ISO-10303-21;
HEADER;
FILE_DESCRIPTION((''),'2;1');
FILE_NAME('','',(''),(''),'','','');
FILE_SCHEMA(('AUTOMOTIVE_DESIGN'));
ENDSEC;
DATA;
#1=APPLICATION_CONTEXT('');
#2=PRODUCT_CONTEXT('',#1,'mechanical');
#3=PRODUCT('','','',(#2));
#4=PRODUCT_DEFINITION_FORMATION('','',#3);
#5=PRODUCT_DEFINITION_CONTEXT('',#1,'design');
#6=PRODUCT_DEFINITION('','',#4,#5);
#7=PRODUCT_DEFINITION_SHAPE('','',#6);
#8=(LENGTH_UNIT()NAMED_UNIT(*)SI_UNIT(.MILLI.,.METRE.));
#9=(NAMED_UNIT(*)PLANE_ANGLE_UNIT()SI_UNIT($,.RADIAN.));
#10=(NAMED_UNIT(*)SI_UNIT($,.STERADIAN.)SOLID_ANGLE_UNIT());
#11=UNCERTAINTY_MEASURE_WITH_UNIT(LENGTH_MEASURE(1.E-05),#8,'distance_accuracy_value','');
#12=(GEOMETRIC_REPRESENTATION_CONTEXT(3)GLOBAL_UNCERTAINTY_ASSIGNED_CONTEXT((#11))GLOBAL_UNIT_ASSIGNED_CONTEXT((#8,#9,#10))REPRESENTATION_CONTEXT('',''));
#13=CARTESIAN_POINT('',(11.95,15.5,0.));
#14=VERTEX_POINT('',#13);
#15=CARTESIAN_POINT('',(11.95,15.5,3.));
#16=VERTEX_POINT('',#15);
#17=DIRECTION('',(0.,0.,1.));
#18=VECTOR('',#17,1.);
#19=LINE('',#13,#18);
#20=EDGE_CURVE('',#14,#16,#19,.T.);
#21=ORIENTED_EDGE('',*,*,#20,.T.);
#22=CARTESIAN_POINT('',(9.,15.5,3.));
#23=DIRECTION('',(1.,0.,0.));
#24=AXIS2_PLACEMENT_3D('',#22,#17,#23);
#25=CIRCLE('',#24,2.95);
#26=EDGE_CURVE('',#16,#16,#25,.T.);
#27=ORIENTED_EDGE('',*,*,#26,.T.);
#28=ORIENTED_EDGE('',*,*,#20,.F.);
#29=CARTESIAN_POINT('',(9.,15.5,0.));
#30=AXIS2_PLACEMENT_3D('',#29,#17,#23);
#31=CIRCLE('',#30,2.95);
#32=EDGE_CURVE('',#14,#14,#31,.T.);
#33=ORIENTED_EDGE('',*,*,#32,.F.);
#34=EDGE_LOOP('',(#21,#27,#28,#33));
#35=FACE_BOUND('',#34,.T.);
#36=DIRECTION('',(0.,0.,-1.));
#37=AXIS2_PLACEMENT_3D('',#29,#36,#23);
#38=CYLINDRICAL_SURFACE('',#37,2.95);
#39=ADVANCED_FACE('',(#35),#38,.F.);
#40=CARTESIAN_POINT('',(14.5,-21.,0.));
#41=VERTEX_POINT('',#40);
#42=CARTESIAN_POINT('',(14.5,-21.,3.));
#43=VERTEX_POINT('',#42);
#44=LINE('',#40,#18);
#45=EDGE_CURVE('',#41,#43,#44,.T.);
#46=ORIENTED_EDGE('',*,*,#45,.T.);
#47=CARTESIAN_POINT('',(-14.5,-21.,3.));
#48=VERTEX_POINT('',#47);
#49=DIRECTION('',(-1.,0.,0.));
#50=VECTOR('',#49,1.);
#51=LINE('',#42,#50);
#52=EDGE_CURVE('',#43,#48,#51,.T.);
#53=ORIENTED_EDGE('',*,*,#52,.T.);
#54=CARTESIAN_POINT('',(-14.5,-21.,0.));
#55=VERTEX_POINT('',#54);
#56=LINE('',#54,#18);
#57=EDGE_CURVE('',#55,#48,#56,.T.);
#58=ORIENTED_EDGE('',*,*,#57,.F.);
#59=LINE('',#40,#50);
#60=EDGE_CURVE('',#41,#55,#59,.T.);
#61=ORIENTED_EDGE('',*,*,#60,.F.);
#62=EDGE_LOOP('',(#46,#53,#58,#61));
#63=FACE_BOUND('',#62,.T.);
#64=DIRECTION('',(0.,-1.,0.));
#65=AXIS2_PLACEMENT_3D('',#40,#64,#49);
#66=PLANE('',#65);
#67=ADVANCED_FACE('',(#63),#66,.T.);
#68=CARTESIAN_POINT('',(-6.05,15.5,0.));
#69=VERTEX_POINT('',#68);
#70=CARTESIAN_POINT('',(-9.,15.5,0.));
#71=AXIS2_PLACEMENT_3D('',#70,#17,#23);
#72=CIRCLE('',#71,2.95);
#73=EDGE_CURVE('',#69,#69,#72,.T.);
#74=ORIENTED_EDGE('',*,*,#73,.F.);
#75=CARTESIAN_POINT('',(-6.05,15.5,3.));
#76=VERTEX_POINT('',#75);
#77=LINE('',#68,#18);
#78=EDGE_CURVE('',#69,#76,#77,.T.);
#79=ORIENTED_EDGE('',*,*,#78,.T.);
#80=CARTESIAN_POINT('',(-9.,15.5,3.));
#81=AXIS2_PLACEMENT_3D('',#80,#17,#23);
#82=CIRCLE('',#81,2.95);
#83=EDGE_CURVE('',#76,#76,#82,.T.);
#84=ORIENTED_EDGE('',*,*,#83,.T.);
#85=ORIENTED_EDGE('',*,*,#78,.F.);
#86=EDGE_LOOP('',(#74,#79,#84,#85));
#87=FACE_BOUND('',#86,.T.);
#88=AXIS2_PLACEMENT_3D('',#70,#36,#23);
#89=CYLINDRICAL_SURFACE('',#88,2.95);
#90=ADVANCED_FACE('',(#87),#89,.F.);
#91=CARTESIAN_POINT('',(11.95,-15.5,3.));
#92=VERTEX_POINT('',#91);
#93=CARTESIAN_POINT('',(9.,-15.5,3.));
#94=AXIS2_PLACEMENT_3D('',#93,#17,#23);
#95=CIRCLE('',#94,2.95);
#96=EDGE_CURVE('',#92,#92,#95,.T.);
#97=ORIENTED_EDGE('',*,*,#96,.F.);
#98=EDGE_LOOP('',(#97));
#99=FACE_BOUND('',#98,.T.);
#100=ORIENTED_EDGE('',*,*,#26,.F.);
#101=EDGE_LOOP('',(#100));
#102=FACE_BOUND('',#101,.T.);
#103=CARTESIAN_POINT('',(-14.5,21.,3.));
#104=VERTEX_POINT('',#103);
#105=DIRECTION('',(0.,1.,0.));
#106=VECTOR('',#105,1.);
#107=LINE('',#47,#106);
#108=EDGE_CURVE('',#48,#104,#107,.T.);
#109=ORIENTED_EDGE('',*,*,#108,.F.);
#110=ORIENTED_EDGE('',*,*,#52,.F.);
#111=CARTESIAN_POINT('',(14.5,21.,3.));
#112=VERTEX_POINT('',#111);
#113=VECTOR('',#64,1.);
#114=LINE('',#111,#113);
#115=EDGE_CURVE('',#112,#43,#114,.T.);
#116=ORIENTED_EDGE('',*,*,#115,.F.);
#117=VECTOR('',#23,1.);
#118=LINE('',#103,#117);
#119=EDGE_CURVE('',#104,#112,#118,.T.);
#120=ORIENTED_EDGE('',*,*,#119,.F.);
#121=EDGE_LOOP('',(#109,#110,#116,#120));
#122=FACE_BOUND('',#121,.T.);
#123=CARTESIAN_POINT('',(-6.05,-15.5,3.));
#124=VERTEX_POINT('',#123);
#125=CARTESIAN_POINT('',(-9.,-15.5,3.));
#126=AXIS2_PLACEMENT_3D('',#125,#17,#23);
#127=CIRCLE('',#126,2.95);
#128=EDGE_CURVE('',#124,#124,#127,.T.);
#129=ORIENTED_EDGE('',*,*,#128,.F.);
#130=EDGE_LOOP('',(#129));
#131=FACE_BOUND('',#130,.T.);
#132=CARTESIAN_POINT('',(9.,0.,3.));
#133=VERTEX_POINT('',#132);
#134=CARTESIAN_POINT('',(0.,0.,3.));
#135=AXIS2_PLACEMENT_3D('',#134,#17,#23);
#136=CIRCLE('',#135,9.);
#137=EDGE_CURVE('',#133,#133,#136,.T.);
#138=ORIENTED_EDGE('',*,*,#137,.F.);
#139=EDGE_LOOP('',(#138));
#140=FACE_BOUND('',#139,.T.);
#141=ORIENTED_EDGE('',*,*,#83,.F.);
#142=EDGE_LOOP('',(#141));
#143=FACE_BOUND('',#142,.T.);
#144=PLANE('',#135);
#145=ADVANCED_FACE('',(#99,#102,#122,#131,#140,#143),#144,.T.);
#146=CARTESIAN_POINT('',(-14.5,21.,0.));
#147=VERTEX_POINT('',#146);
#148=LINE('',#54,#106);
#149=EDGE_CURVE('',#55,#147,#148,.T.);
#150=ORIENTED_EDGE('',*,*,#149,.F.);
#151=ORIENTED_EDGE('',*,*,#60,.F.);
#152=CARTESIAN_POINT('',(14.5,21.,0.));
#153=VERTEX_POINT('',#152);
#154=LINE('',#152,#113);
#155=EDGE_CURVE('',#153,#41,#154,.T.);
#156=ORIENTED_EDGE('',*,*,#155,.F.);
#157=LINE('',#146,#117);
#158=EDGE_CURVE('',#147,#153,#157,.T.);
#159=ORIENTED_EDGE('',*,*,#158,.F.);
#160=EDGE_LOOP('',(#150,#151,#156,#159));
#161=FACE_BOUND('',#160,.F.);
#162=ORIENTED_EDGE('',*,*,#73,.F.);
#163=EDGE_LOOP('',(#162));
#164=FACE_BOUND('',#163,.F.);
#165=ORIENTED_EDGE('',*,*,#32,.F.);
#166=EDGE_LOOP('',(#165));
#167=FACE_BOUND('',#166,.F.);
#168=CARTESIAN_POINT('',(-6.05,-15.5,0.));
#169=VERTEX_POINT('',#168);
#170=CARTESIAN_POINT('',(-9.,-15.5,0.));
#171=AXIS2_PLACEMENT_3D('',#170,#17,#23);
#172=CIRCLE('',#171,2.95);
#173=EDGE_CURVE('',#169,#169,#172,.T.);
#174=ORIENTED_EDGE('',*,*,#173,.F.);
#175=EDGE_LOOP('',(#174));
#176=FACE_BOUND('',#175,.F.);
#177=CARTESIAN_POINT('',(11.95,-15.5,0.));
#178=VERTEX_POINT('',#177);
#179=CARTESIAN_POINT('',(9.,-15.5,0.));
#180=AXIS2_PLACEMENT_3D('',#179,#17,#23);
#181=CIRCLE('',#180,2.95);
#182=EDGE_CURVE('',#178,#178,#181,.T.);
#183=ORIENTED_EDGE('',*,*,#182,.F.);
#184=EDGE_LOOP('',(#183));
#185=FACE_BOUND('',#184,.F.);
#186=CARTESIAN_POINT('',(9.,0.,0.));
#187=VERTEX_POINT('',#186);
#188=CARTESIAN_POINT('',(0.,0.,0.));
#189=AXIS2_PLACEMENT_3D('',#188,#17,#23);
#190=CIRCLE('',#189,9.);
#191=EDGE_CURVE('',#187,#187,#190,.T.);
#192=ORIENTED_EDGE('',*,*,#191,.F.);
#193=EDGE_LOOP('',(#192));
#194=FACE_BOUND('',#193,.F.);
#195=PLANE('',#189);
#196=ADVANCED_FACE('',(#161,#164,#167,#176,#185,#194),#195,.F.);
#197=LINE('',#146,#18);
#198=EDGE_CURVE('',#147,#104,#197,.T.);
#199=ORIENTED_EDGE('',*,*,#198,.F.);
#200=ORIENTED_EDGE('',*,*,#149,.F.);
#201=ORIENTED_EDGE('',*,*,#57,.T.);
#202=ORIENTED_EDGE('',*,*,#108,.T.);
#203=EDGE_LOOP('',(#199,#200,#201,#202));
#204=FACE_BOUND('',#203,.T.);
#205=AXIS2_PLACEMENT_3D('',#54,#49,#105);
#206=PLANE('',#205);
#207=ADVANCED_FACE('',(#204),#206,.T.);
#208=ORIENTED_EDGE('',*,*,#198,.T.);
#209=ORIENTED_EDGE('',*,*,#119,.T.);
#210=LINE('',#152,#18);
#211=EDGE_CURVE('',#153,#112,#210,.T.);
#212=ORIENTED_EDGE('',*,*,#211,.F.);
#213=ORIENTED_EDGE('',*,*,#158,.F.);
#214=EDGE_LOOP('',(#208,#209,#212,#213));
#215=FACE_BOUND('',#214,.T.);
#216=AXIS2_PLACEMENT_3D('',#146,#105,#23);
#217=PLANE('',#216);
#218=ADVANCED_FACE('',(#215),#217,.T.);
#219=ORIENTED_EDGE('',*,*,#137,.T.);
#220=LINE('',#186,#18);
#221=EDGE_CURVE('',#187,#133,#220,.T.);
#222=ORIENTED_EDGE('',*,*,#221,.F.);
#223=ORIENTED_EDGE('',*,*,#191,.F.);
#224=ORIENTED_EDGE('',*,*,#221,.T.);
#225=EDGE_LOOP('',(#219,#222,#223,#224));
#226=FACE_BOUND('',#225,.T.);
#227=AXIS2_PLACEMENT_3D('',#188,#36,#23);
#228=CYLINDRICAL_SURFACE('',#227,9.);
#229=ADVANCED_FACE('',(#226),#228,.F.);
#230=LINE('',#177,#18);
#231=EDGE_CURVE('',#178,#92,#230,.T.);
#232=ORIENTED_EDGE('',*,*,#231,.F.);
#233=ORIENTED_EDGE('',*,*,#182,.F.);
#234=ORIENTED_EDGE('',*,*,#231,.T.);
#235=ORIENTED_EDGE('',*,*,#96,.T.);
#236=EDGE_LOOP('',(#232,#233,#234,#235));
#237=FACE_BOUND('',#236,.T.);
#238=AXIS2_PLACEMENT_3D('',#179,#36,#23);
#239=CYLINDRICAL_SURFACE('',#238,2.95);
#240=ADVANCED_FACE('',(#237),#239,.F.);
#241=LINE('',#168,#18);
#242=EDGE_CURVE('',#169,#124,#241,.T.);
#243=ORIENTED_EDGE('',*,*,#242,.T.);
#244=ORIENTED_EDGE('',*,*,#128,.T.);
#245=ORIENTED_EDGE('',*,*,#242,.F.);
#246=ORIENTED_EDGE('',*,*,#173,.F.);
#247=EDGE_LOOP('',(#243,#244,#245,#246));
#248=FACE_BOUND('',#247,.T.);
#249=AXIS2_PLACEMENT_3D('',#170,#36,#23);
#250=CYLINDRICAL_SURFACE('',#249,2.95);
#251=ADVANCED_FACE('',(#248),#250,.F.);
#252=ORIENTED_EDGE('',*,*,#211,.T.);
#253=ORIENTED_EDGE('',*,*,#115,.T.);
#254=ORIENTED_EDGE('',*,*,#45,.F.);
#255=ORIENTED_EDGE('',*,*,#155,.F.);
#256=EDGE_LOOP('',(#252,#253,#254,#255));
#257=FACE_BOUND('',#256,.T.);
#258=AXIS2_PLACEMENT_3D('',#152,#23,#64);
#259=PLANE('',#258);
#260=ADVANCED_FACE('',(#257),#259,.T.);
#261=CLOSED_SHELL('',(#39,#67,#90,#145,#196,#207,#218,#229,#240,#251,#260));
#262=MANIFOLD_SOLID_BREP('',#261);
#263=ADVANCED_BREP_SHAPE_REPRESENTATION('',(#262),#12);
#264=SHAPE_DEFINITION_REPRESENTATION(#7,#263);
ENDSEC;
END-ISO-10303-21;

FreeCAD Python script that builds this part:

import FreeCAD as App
import Part
import Sketcher

V = App.Vector
Q = App.Units.Quantity


def add_polygon(sketch, points):
    """Adds a closed chain of lines whose ends are joined by coincident constraints."""
    first, n = sketch.GeometryCount, len(points)
    for a, b in zip(points, points[1:] + points[:1]):
        sketch.addGeometry(Part.LineSegment(App.Vector(*a, 0), App.Vector(*b, 0)), False)
    for i in range(n):
        sketch.addConstraint(Sketcher.Constraint("Coincident", first + i, 2, first + (i + 1) % n, 1))

doc = App.newDocument("Part")
body = doc.addObject("PartDesign::Body", "Body")

sketch1 = body.newObject("Sketcher::SketchObject", "Sketch")
sketch1.AttachmentSupport = (doc.getObject("XY_Plane"), [""])
sketch1.MapMode = "FlatFace"
add_polygon(sketch1, [(14.5, 21), (-14.5, 21), (-14.5, -21), (14.5, -21)])
sketch1.addGeometry(Part.Circle(V(-9, -15.5, 0), V(0, 0, 1), 2.95), False)
sketch1.addGeometry(Part.Circle(V(9, -15.5, 0), V(0, 0, 1), 2.95), False)
sketch1.addGeometry(Part.Circle(V(-9, 15.5, 0), V(0, 0, 1), 2.95), False)
sketch1.addGeometry(Part.Circle(V(0, 0, 0), V(0, 0, 1), 9), False)
sketch1.addGeometry(Part.Circle(V(9, 15.5, 0), V(0, 0, 1), 2.95), False)
sketch1.addConstraint(Sketcher.Constraint("Horizontal", 0))
sketch1.addConstraint(Sketcher.Constraint("Vertical", 1))
sketch1.addConstraint(Sketcher.Constraint("Horizontal", 2))
sketch1.addConstraint(Sketcher.Constraint("Vertical", 3))
sketch1.addConstraint(Sketcher.Constraint("Coincident", 7, 3, -1, 1))
sketch1.addConstraint(Sketcher.Constraint("Equal", 4, 5))
sketch1.addConstraint(Sketcher.Constraint("Equal", 5, 6))
sketch1.addConstraint(Sketcher.Constraint("Equal", 6, 8))
sketch1.addConstraint(Sketcher.Constraint("Symmetric", 5, 3, 6, 3, -1, 1))
sketch1.addConstraint(Sketcher.Constraint("Symmetric", 4, 3, 8, 3, -1, 1))
sketch1.addConstraint(Sketcher.Constraint("Symmetric", 0, 2, 2, 2, -1, 1))
sketch1.addConstraint(Sketcher.Constraint("Symmetric", 4, 3, 5, 3, -2))
sketch1.addConstraint(Sketcher.Constraint("Diameter", 7, Q("18 mm")))
sketch1.addConstraint(Sketcher.Constraint("Diameter", 4, Q("5.9 mm")))
sketch1.addConstraint(Sketcher.Constraint("DistanceX", 0, 2, 0, 1, Q("29 mm")))
sketch1.addConstraint(Sketcher.Constraint("DistanceY", 1, 2, 1, 1, Q("42 mm")))
sketch1.addConstraint(Sketcher.Constraint("DistanceX", 4, 3, 5, 3, Q("18 mm")))
sketch1.addConstraint(Sketcher.Constraint("DistanceY", 4, 3, 6, 3, Q("31 mm")))
pad1 = body.newObject("PartDesign::Pad", "Pad")
pad1.Profile = sketch1
pad1.Length = 3

doc.recompute()
